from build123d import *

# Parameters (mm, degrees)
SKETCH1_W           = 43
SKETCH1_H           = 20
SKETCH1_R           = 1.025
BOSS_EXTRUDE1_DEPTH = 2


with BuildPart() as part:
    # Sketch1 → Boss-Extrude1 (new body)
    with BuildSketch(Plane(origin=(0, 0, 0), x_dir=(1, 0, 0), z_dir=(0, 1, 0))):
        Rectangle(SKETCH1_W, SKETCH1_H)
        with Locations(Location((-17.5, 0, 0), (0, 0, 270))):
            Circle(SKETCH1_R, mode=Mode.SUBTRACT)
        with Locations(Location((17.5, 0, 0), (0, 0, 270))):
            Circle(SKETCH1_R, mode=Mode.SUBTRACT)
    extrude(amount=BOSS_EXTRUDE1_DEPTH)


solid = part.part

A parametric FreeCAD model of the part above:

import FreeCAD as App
import Part
import Sketcher
Q = App.Units.Quantity


def add_polygon(sketch, points):
    """Adds a closed chain of lines whose ends are joined by coincident constraints."""
    first, n = sketch.GeometryCount, len(points)
    for a, b in zip(points, points[1:] + points[:1]):
        sketch.addGeometry(Part.LineSegment(App.Vector(*a, 0), App.Vector(*b, 0)), False)
    for i in range(n):
        sketch.addConstraint(Sketcher.Constraint("Coincident", first + i, 2, first + (i + 1) % n, 1))

doc = App.newDocument("Part")
body = doc.addObject("PartDesign::Body", "Body")

# Sketch on XZ plane
sketch1 = body.newObject("Sketcher::SketchObject", "Sketch")
sketch1.AttachmentSupport = (doc.getObject("XZ_Plane"), [""])
sketch1.MapMode = "FlatFace"
add_polygon(sketch1, [(-21.5, -10), (-21.5, 10), (21.5, 10), (21.5, -10)])  # lines 0-3
sketch1.addGeometry(Part.Circle(App.Vector(-17.5, 0, 0), App.Vector(0, 0, 1), 1.025), False)  # 4
sketch1.addGeometry(Part.Circle(App.Vector(17.5, 0, 0), App.Vector(0, 0, 1), 1.025), False)  # 5
sketch1.addConstraint(Sketcher.Constraint("Vertical", 0))
sketch1.addConstraint(Sketcher.Constraint("Horizontal", 1))
sketch1.addConstraint(Sketcher.Constraint("Vertical", 2))
sketch1.addConstraint(Sketcher.Constraint("Horizontal", 3))
sketch1.addConstraint(Sketcher.Constraint("Equal", 4, 5))
sketch1.addConstraint(Sketcher.Constraint("Symmetric", 4, 3, 5, 3, -1, 1))
sketch1.addConstraint(Sketcher.Constraint("Symmetric", 0, 2, 2, 2, -1, 1))
sketch1.addConstraint(Sketcher.Constraint("PointOnObject", 4, 3, -1))
sketch1.addConstraint(Sketcher.Constraint("Diameter", 4, Q("2.05 mm")))
sketch1.addConstraint(Sketcher.Constraint("DistanceX", 1, 1, 1, 2, Q("43 mm")))
sketch1.addConstraint(Sketcher.Constraint("DistanceY", 0, 1, 0, 2, Q("20 mm")))
sketch1.addConstraint(Sketcher.Constraint("DistanceX", 4, 3, 5, 3, Q("35 mm")))
pad1 = body.newObject("PartDesign::Pad", "Pad")
pad1.Profile = sketch1
pad1.Length = 2
pad1.Reversed = True

doc.recompute()
